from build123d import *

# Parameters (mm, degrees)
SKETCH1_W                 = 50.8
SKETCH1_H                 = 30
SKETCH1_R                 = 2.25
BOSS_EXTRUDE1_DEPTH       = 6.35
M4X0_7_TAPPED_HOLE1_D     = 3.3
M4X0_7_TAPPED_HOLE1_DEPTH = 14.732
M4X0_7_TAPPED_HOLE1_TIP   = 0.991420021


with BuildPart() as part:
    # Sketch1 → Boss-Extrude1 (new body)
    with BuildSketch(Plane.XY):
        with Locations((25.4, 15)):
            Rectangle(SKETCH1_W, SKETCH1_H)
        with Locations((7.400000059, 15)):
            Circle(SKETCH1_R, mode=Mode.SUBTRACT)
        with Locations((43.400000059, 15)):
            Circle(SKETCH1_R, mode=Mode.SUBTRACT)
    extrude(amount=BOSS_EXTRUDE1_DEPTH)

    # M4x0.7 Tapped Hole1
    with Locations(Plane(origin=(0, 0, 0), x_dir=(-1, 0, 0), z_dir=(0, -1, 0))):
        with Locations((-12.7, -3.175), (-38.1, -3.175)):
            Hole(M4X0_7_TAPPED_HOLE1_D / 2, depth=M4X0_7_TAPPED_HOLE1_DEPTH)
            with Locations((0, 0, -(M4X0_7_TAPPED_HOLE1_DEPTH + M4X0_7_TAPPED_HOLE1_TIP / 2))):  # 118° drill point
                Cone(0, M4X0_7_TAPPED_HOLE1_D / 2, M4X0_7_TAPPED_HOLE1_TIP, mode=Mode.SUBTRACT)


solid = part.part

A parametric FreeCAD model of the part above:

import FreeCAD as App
import Part
import Sketcher

V = App.Vector
Q = App.Units.Quantity

doc = App.newDocument("Part")
body = doc.addObject("PartDesign::Body", "Body")

# Sketch on XY plane
sketch1 = body.newObject("Sketcher::SketchObject", "Sketch")
sketch1.AttachmentSupport = (doc.getObject("XY_Plane"), [""])
sketch1.MapMode = "FlatFace"
sketch1.addGeometry(Part.LineSegment(V(0, 30, 0), V(0, 0, 0)), False)
sketch1.addGeometry(Part.LineSegment(V(0, 0, 0), V(50.8, 0, 0)), False)
sketch1.addGeometry(Part.LineSegment(V(50.8, 0, 0), V(50.8, 30, 0)), False)
sketch1.addGeometry(Part.LineSegment(V(50.8, 30, 0), V(0, 30, 0)), False)
sketch1.addGeometry(Part.Circle(V(7.4, 15, 0), V(0, 0, 1), 2.2), False)
sketch1.addGeometry(Part.Circle(V(43.4, 15, 0), V(0, 0, 1), 2.2), False)
sketch1.addConstraint(Sketcher.Constraint("Coincident", 0, 2, 1, 1))
sketch1.addConstraint(Sketcher.Constraint("Coincident", 1, 2, 2, 1))
sketch1.addConstraint(Sketcher.Constraint("Coincident", 2, 2, 3, 1))
sketch1.addConstraint(Sketcher.Constraint("Coincident", 3, 2, 0, 1))
sketch1.addConstraint(Sketcher.Constraint("Vertical", 0))
sketch1.addConstraint(Sketcher.Constraint("Horizontal", 1))
sketch1.addConstraint(Sketcher.Constraint("Vertical", 2))
sketch1.addConstraint(Sketcher.Constraint("Horizontal", 3))
sketch1.addConstraint(Sketcher.Constraint("Coincident", 0, 2, -1, 1))
sketch1.addConstraint(Sketcher.Constraint("Equal", 4, 5))
sketch1.addConstraint(Sketcher.Constraint("Horizontal", 4, 3, 5, 3))
sketch1.addConstraint(Sketcher.Constraint("Diameter", 4, Q("4.5 mm")))
sketch1.addConstraint(Sketcher.Constraint("DistanceY", 0, 2, 0, 1, Q("30 mm")))
sketch1.addConstraint(Sketcher.Constraint("DistanceX", 1, 1, 1, 2, Q("50.8 mm")))
sketch1.addConstraint(Sketcher.Constraint("DistanceY", -1, 1, 4, 3, Q("15 mm")))
sketch1.addConstraint(Sketcher.Constraint("DistanceX", 4, 3, 5, 3, Q("36 mm")))
sketch1.addConstraint(Sketcher.Constraint("DistanceX", -1, 1, 4, 3, Q("7.4 mm")))
pad1 = body.newObject("PartDesign::Pad", "Pad")
pad1.Profile = sketch1
pad1.Length = 6.35

# Sketch on XZ plane
sketch2 = body.newObject("Sketcher::SketchObject", "Sketch001")
sketch2.AttachmentSupport = (doc.getObject("XZ_Plane"), [""])
sketch2.MapMode = "FlatFace"
sketch2.addGeometry(Part.Circle(V(12.7, 3.2, 0), V(0, 0, 1), 1.6), False)
sketch2.addGeometry(Part.Circle(V(38.1, 3.2, 0), V(0, 0, 1), 1.6), False)
sketch2.addConstraint(Sketcher.Constraint("Equal", 0, 1))
sketch2.addConstraint(Sketcher.Constraint("Horizontal", 0, 3, 1, 3))
sketch2.addConstraint(Sketcher.Constraint("Diameter", 0, Q("3.3 mm")))
sketch2.addConstraint(Sketcher.Constraint("DistanceX", -1, 1, 0, 3, Q("12.7 mm")))
sketch2.addConstraint(Sketcher.Constraint("DistanceX", -1, 1, 1, 3, Q("38.1 mm")))
sketch2.addConstraint(Sketcher.Constraint("DistanceY", -1, 1, 0, 3, Q("3.175 mm")))
doc.recompute()
hole = body.newObject("PartDesign::Hole", "Hole")
hole.Profile = sketch2
hole.ThreadType = "None"
hole.Diameter = 3.3
hole.DepthType = "Dimension"
hole.Depth = 14.732
hole.DrillPoint = "Angled"
hole.DrillPointAngle = 118

doc.recompute()
